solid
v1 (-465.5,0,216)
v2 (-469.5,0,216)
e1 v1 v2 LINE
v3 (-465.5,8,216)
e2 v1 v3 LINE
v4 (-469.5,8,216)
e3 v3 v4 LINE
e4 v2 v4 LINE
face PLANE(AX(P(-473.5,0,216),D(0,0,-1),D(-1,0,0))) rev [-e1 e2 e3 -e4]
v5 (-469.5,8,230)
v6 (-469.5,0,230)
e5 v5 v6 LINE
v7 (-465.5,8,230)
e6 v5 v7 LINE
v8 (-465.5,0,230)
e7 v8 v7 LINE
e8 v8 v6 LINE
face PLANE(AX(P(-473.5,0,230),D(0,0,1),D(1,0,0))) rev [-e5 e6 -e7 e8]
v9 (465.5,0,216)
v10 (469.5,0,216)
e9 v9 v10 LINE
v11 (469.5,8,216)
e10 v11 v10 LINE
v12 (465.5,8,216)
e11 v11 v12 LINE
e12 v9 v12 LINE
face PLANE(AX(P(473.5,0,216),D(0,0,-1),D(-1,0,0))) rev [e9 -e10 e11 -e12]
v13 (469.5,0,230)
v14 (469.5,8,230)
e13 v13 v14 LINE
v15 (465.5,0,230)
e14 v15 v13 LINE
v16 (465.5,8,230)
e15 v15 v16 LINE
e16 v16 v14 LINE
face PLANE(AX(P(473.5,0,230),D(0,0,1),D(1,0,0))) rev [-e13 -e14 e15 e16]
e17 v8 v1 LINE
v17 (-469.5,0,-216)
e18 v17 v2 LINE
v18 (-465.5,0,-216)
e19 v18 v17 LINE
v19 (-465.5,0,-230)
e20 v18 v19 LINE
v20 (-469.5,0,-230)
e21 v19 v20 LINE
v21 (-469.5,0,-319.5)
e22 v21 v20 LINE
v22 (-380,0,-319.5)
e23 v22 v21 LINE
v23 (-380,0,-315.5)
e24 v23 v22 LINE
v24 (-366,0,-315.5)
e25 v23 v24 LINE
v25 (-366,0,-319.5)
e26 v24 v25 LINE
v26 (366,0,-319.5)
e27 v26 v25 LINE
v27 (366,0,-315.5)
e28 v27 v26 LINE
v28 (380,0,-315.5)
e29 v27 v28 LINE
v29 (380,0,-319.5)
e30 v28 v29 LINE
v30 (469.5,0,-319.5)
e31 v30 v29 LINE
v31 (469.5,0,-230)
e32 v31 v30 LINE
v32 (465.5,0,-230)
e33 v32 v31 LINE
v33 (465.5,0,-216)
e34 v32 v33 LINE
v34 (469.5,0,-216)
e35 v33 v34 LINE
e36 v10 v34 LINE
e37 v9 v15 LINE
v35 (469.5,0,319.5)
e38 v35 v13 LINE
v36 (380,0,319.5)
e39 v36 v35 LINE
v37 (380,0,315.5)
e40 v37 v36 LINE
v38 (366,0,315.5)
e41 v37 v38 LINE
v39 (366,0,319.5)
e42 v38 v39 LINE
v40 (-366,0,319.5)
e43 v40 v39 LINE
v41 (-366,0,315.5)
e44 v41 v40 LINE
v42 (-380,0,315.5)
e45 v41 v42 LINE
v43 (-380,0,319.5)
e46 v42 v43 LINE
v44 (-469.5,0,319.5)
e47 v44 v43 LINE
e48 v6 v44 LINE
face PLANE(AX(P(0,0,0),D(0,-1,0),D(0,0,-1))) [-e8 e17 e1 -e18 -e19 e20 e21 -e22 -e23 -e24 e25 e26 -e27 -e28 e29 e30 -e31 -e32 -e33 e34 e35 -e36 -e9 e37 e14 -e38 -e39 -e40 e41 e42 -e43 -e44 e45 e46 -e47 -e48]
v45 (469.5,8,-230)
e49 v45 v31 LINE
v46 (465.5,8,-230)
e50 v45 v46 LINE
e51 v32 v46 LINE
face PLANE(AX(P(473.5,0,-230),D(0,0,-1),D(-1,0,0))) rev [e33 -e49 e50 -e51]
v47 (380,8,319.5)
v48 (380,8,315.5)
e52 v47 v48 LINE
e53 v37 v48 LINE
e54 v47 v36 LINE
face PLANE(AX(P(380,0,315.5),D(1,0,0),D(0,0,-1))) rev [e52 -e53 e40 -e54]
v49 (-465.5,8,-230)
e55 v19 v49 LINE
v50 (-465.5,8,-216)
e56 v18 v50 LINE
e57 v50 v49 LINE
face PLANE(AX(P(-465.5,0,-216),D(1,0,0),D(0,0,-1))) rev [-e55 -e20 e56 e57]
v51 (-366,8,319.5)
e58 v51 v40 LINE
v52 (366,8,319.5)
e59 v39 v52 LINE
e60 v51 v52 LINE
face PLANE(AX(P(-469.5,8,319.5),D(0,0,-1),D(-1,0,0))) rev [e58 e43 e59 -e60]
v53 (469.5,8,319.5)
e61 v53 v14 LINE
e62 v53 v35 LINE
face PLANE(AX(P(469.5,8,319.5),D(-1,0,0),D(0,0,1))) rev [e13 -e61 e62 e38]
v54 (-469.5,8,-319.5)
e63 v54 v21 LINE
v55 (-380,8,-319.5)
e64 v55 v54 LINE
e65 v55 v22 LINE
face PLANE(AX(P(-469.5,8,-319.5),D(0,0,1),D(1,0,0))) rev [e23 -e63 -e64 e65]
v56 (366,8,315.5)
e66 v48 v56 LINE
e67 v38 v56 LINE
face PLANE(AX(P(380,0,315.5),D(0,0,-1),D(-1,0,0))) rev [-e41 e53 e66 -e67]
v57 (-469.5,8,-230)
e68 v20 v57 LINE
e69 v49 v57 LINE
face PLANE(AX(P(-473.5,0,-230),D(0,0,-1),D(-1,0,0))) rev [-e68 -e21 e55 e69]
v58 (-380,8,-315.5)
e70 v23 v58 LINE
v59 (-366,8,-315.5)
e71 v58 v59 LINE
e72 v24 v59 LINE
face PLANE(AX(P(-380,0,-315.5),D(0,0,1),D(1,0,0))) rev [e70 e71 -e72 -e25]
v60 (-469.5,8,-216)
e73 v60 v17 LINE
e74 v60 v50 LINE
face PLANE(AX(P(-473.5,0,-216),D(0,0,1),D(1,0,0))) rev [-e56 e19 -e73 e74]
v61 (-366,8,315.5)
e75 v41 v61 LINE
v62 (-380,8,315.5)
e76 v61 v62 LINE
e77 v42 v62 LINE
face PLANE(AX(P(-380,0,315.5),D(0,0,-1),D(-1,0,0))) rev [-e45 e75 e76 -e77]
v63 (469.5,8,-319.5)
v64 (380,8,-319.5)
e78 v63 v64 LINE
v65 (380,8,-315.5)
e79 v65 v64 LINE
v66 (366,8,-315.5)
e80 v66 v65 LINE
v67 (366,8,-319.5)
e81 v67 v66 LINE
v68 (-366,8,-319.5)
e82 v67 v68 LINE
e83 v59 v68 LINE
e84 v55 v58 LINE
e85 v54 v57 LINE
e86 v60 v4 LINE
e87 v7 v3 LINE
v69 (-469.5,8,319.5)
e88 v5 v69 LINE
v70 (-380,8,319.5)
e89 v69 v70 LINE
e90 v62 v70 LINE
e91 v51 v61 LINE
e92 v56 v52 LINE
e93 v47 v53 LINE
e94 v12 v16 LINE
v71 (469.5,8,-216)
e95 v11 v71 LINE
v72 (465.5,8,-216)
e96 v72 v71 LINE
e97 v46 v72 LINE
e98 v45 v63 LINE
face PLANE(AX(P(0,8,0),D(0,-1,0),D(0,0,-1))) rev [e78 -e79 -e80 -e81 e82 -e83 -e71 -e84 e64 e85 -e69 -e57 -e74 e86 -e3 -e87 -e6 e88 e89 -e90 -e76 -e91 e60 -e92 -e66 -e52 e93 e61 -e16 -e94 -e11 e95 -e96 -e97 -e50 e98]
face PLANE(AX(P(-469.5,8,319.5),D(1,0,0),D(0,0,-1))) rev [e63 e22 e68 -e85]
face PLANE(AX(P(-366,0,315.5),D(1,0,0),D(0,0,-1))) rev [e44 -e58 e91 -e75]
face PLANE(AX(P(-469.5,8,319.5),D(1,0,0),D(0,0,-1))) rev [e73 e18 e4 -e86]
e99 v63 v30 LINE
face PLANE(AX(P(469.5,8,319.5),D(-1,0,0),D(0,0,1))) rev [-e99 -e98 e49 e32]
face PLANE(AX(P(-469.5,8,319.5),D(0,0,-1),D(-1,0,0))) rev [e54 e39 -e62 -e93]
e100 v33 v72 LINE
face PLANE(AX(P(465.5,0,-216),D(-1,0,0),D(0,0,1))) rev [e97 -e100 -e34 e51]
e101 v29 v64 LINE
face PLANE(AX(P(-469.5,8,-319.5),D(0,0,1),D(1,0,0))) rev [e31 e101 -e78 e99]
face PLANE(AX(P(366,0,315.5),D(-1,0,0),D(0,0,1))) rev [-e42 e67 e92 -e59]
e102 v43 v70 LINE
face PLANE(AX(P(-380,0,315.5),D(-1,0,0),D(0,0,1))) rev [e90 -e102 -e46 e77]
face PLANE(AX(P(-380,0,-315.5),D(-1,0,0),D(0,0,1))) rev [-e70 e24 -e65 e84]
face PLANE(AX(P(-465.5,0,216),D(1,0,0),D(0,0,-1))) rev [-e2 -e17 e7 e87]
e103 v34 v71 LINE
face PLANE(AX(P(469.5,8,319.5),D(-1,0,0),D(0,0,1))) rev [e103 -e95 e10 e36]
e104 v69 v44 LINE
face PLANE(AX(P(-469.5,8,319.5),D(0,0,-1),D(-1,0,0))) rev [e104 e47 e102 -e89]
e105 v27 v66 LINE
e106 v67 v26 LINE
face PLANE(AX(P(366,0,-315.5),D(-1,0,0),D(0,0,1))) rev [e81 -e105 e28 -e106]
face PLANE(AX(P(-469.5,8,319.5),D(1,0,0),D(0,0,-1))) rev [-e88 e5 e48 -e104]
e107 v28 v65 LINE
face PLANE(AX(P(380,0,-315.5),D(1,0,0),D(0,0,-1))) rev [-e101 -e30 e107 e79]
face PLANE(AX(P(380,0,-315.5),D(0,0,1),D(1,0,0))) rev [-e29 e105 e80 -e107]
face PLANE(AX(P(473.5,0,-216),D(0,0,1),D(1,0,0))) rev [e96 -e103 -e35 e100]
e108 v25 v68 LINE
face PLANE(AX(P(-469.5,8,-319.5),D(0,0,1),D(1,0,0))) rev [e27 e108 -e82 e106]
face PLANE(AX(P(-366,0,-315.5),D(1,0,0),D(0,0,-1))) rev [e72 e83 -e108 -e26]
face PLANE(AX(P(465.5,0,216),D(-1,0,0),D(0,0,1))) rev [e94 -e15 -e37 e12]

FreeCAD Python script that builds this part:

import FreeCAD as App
import Part
import Sketcher
from FreeCAD import Vector

doc = App.newDocument("Part")
body = doc.addObject("PartDesign::Body", "Body")

# Sketch on XZ plane
sketch1 = body.newObject("Sketcher::SketchObject", "Sketch")
sketch1.AttachmentSupport = (doc.getObject("XZ_Plane"), [""])
sketch1.MapMode = "FlatFace"
sketch1.addGeometry([
    Part.LineSegment(Vector(-469.5, -319.5, 0), Vector(-469.5, 319.5, 0)),
    Part.LineSegment(Vector(-469.5, 319.5, 0), Vector(469.5, 319.5, 0)),
    Part.LineSegment(Vector(469.5, 319.5, 0), Vector(469.5, -319.5, 0)),
    Part.LineSegment(Vector(469.5, -319.5, 0), Vector(-469.5, -319.5, 0)),
], False)
sketch1.addConstraint([
    Sketcher.Constraint("Coincident", 0, 2, 1, 1),
    Sketcher.Constraint("Coincident", 1, 2, 2, 1),
    Sketcher.Constraint("Coincident", 2, 2, 3, 1),
    Sketcher.Constraint("Coincident", 3, 2, 0, 1),
    Sketcher.Constraint("Vertical", 0),
    Sketcher.Constraint("Horizontal", 1),
    Sketcher.Constraint("Vertical", 2),
    Sketcher.Constraint("Horizontal", 3),
    Sketcher.Constraint("Symmetric", 0, 2, 2, 2, -1, 1),
    Sketcher.Constraint("DistanceX", 1, 1, 1, 2, 939.0),
    Sketcher.Constraint("DistanceY", 0, 1, 0, 2, 639.0),
])
pad1 = body.newObject("PartDesign::Pad", "Pad")
pad1.Profile = sketch1
pad1.Length = 8
pad1.Reversed = True

# Sketch on XZ plane
sketch2 = body.newObject("Sketcher::SketchObject", "Sketch001")
sketch2.AttachmentSupport = (doc.getObject("XZ_Plane"), [""])
sketch2.MapMode = "FlatFace"
sketch2.AttachmentOffset = App.Placement(Vector(0, 0, -8), App.Rotation())
sketch2.addGeometry([
    Part.LineSegment(Vector(-380, 315.5, 0), Vector(-380, 323.5, 0)),  # 0
    Part.LineSegment(Vector(-380, 323.5, 0), Vector(-366, 323.5, 0)),  # 1
    Part.LineSegment(Vector(-366, 323.5, 0), Vector(-366, 315.5, 0)),  # 2
    Part.LineSegment(Vector(-366, 315.5, 0), Vector(-380, 315.5, 0)),  # 3
    Part.LineSegment(Vector(366, 315.5, 0), Vector(366, 323.5, 0)),  # 4
    Part.LineSegment(Vector(366, 323.5, 0), Vector(380, 323.5, 0)),  # 5
    Part.LineSegment(Vector(380, 323.5, 0), Vector(380, 315.5, 0)),  # 6
    Part.LineSegment(Vector(380, 315.5, 0), Vector(366, 315.5, 0)),  # 7
    Part.LineSegment(Vector(-380, -323.5, 0), Vector(-380, -315.5, 0)),  # 8
    Part.LineSegment(Vector(-380, -315.5, 0), Vector(-366, -315.5, 0)),  # 9
    Part.LineSegment(Vector(-366, -315.5, 0), Vector(-366, -323.5, 0)),  # 10
    Part.LineSegment(Vector(-366, -323.5, 0), Vector(-380, -323.5, 0)),  # 11
    Part.LineSegment(Vector(-473.5, 216, 0), Vector(-473.5, 230, 0)),  # 12
    Part.LineSegment(Vector(-473.5, 230, 0), Vector(-465.5, 230, 0)),  # 13
    Part.LineSegment(Vector(-465.5, 230, 0), Vector(-465.5, 216, 0)),  # 14
    Part.LineSegment(Vector(-465.5, 216, 0), Vector(-473.5, 216, 0)),  # 15
    Part.LineSegment(Vector(366, -323.5, 0), Vector(366, -315.5, 0)),  # 16
    Part.LineSegment(Vector(366, -315.5, 0), Vector(380, -315.5, 0)),  # 17
    Part.LineSegment(Vector(380, -315.5, 0), Vector(380, -323.5, 0)),  # 18
    Part.LineSegment(Vector(380, -323.5, 0), Vector(366, -323.5, 0)),  # 19
    Part.LineSegment(Vector(-473.5, -230, 0), Vector(-473.5, -216, 0)),  # 20
    Part.LineSegment(Vector(-473.5, -216, 0), Vector(-465.5, -216, 0)),  # 21
    Part.LineSegment(Vector(-465.5, -216, 0), Vector(-465.5, -230, 0)),  # 22
    Part.LineSegment(Vector(-465.5, -230, 0), Vector(-473.5, -230, 0)),  # 23
    Part.LineSegment(Vector(465.5, -230, 0), Vector(465.5, -216, 0)),  # 24
    Part.LineSegment(Vector(465.5, -216, 0), Vector(473.5, -216, 0)),  # 25
    Part.LineSegment(Vector(473.5, -216, 0), Vector(473.5, -230, 0)),  # 26
    Part.LineSegment(Vector(473.5, -230, 0), Vector(465.5, -230, 0)),  # 27
    Part.LineSegment(Vector(465.5, 216, 0), Vector(465.5, 230, 0)),  # 28
    Part.LineSegment(Vector(465.5, 230, 0), Vector(473.5, 230, 0)),  # 29
    Part.LineSegment(Vector(473.5, 230, 0), Vector(473.5, 216, 0)),  # 30
    Part.LineSegment(Vector(473.5, 216, 0), Vector(465.5, 216, 0)),  # 31
], False)
sketch2.addConstraint([
    Sketcher.Constraint("Coincident", 0, 2, 1, 1),
    Sketcher.Constraint("Coincident", 1, 2, 2, 1),
    Sketcher.Constraint("Coincident", 2, 2, 3, 1),
    Sketcher.Constraint("Coincident", 3, 2, 0, 1),
    Sketcher.Constraint("Coincident", 4, 2, 5, 1),
    Sketcher.Constraint("Coincident", 5, 2, 6, 1),
    Sketcher.Constraint("Coincident", 6, 2, 7, 1),
    Sketcher.Constraint("Coincident", 7, 2, 4, 1),
    Sketcher.Constraint("Coincident", 8, 2, 9, 1),
    Sketcher.Constraint("Coincident", 9, 2, 10, 1),
    Sketcher.Constraint("Coincident", 10, 2, 11, 1),
    Sketcher.Constraint("Coincident", 11, 2, 8, 1),
    Sketcher.Constraint("Coincident", 12, 2, 13, 1),
    Sketcher.Constraint("Coincident", 13, 2, 14, 1),
    Sketcher.Constraint("Coincident", 14, 2, 15, 1),
    Sketcher.Constraint("Coincident", 15, 2, 12, 1),
    Sketcher.Constraint("Coincident", 16, 2, 17, 1),
    Sketcher.Constraint("Coincident", 17, 2, 18, 1),
    Sketcher.Constraint("Coincident", 18, 2, 19, 1),
    Sketcher.Constraint("Coincident", 19, 2, 16, 1),
    Sketcher.Constraint("Coincident", 20, 2, 21, 1),
    Sketcher.Constraint("Coincident", 21, 2, 22, 1),
    Sketcher.Constraint("Coincident", 22, 2, 23, 1),
    Sketcher.Constraint("Coincident", 23, 2, 20, 1),
    Sketcher.Constraint("Coincident", 24, 2, 25, 1),
    Sketcher.Constraint("Coincident", 25, 2, 26, 1),
    Sketcher.Constraint("Coincident", 26, 2, 27, 1),
    Sketcher.Constraint("Coincident", 27, 2, 24, 1),
    Sketcher.Constraint("Coincident", 28, 2, 29, 1),
    Sketcher.Constraint("Coincident", 29, 2, 30, 1),
    Sketcher.Constraint("Coincident", 30, 2, 31, 1),
    Sketcher.Constraint("Coincident", 31, 2, 28, 1),
    Sketcher.Constraint("Vertical", 0),
    Sketcher.Constraint("Horizontal", 1),
    Sketcher.Constraint("Vertical", 2),
    Sketcher.Constraint("Horizontal", 3),
    Sketcher.Constraint("Vertical", 4),
    Sketcher.Constraint("Horizontal", 5),
    Sketcher.Constraint("Vertical", 6),
    Sketcher.Constraint("Horizontal", 7),
    Sketcher.Constraint("Vertical", 8),
    Sketcher.Constraint("Horizontal", 9),
    Sketcher.Constraint("Vertical", 10),
    Sketcher.Constraint("Horizontal", 11),
    Sketcher.Constraint("Vertical", 12),
    Sketcher.Constraint("Horizontal", 13),
    Sketcher.Constraint("Vertical", 14),
    Sketcher.Constraint("Horizontal", 15),
    Sketcher.Constraint("Vertical", 16),
    Sketcher.Constraint("Horizontal", 17),
    Sketcher.Constraint("Vertical", 18),
    Sketcher.Constraint("Horizontal", 19),
    Sketcher.Constraint("Vertical", 20),
    Sketcher.Constraint("Horizontal", 21),
    Sketcher.Constraint("Vertical", 22),
    Sketcher.Constraint("Horizontal", 23),
    Sketcher.Constraint("Vertical", 24),
    Sketcher.Constraint("Horizontal", 25),
    Sketcher.Constraint("Vertical", 26),
    Sketcher.Constraint("Horizontal", 27),
    Sketcher.Constraint("Vertical", 28),
    Sketcher.Constraint("Horizontal", 29),
    Sketcher.Constraint("Vertical", 30),
    Sketcher.Constraint("Horizontal", 31),
    Sketcher.Constraint("Symmetric", 6, 2, 8, 2, -1, 1),
    Sketcher.Constraint("Symmetric", 4, 2, 10, 2, -1, 1),
    Sketcher.Constraint("Symmetric", 2, 2, 16, 2, -1, 1),
    Sketcher.Constraint("Symmetric", 0, 2, 18, 2, -1, 1),
    Sketcher.Constraint("Symmetric", 14, 2, 24, 2, -1, 1),
    Sketcher.Constraint("Symmetric", 12, 2, 26, 2, -1, 1),
    Sketcher.Constraint("Symmetric", 22, 2, 28, 2, -1, 1),
    Sketcher.Constraint("Symmetric", 20, 2, 30, 2, -1, 1),
    Sketcher.Constraint("Symmetric", 1, 2, 4, 2, -2),
    Sketcher.Constraint("Symmetric", 3, 2, 6, 2, -2),
    Sketcher.Constraint("Symmetric", 21, 2, 24, 2, -2),
    Sketcher.Constraint("Symmetric", 23, 2, 26, 2, -2),
    Sketcher.Constraint("Equal", 31, 0),
    Sketcher.Constraint("Equal", 19, 12),
    Sketcher.Constraint("DistanceX", 1, 1, 1, 2, 14.0),
    Sketcher.Constraint("DistanceX", 13, 1, 13, 2, 8.0),
    Sketcher.Constraint("DistanceX", 0, 2, -1, 1, 380.0),
    Sketcher.Constraint("DistanceY", -1, 1, 12, 2, 230.0),
    Sketcher.Constraint("DistanceY", 8, 2, 3, 2, 631.0),
    Sketcher.Constraint("DistanceX", 12, 2, -1, 1, 473.5),
])
pocket1 = body.newObject("PartDesign::Pocket", "Pocket")
pocket1.Profile = sketch2
pocket1.Type = "ThroughAll"
pocket1.Reversed = True

doc.recompute()
